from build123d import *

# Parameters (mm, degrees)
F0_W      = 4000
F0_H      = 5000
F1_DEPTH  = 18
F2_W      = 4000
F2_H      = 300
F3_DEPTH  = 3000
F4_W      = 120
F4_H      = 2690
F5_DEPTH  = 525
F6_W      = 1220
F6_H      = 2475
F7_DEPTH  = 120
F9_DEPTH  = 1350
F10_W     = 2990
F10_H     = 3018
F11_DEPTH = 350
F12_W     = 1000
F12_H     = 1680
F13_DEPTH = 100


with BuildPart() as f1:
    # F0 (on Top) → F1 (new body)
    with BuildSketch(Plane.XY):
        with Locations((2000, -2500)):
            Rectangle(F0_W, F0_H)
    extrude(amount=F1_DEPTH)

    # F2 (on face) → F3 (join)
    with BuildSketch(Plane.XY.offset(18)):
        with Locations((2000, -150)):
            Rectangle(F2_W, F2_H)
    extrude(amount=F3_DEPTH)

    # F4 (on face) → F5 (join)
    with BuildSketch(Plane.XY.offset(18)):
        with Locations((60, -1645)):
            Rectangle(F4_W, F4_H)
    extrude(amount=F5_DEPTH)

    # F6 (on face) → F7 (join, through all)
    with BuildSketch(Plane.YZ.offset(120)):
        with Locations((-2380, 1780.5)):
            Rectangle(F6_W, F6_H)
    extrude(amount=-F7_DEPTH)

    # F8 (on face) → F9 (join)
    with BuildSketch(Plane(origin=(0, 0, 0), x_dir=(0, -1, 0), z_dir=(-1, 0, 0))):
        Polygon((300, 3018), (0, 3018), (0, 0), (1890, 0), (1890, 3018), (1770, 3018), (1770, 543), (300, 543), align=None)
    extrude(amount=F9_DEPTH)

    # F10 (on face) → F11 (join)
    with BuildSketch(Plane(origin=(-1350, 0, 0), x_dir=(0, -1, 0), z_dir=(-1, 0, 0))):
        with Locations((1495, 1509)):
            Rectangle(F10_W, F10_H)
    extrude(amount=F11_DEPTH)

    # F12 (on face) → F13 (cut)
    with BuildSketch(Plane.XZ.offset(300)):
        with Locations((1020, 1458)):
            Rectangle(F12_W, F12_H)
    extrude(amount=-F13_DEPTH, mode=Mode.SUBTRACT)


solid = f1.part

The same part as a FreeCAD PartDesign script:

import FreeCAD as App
import Part
import Sketcher
from FreeCAD import Vector


def add_polygon(sketch, points):
    """Adds a closed chain of lines whose ends are joined by coincident constraints."""
    first, n = sketch.GeometryCount, len(points)
    for a, b in zip(points, points[1:] + points[:1]):
        sketch.addGeometry(Part.LineSegment(App.Vector(*a, 0), App.Vector(*b, 0)), False)
    for i in range(n):
        sketch.addConstraint(Sketcher.Constraint("Coincident", first + i, 2, first + (i + 1) % n, 1))

doc = App.newDocument("Part")
params = doc.addObject("Spreadsheet::Sheet", "Params")
for row, (alias, value) in enumerate([
    ("sketch1_width", "4000 mm"),
    ("sketch1_height", "5000 mm"),
    ("pad1_length", "18 mm"),
    ("sketch2_width", "4000 mm"),
    ("sketch2_height", "300 mm"),
    ("pad2_length", "3000 mm"),
    ("sketch3_width", "120 mm"),
    ("sketch3_height", "2690 mm"),
    ("pad3_length", "525 mm"),
    ("sketch4_width", "1220 mm"),
    ("sketch4_height", "2475 mm"),
    ("pad4_length", "120 mm"),
    ("sketch5_width", "300 mm"),
    ("sketch5_width2", "1890 mm"),
    ("sketch5_width3", "120 mm"),
    ("sketch5_height", "3018 mm"),
    ("sketch5_height2", "2475 mm"),
    ("pad5_length", "1350 mm"),
    ("sketch6_width", "2990 mm"),
    ("sketch6_height", "3018 mm"),
    ("pad6_length", "350 mm"),
    ("sketch7_width", "1000 mm"),
    ("sketch7_height", "1680 mm"),
    ("pocket1_length", "100 mm"),
], start=1):
    params.set(f"A{row}", alias)
    params.set(f"B{row}", "=" + value)
    params.setAlias(f"B{row}", alias)

body = doc.addObject("PartDesign::Body", "Body")

# Sketch on XY plane
sketch1 = body.newObject("Sketcher::SketchObject", "Sketch")
sketch1.AttachmentSupport = (doc.getObject("XY_Plane"), [""])
sketch1.MapMode = "FlatFace"
add_polygon(sketch1, [(0, 0), (0, -5000), (4000, -5000), (4000, 0)])  # lines 0-3
sketch1.addConstraint(Sketcher.Constraint("Vertical", 0))
sketch1.addConstraint(Sketcher.Constraint("Horizontal", 1))
sketch1.addConstraint(Sketcher.Constraint("Vertical", 2))
sketch1.addConstraint(Sketcher.Constraint("Horizontal", 3))
sketch1.addConstraint(Sketcher.Constraint("Coincident", 3, 2, -1, 1))
sketch1.addConstraint(Sketcher.Constraint("DistanceX", 1, 1, 1, 2, 4000.0))
sketch1.addConstraint(Sketcher.Constraint("DistanceY", 0, 2, 0, 1, 5000.0))
sketch1.setExpression("Constraints[9]", "Params.sketch1_width")
sketch1.setExpression("Constraints[10]", "Params.sketch1_height")
pad1 = body.newObject("PartDesign::Pad", "Pad")
pad1.Profile = sketch1
pad1.setExpression("Length", "Params.pad1_length")

# Sketch on XY plane
sketch2 = body.newObject("Sketcher::SketchObject", "Sketch001")
sketch2.AttachmentSupport = (doc.getObject("XY_Plane"), [""])
sketch2.MapMode = "FlatFace"
sketch2.AttachmentOffset = App.Placement(Vector(0, 0, 18), App.Rotation())
add_polygon(sketch2, [(0, 0), (0, -300), (4000, -300), (4000, 0)])  # lines 0-3
sketch2.addConstraint(Sketcher.Constraint("Vertical", 0))
sketch2.addConstraint(Sketcher.Constraint("Horizontal", 1))
sketch2.addConstraint(Sketcher.Constraint("Vertical", 2))
sketch2.addConstraint(Sketcher.Constraint("Horizontal", 3))
sketch2.addConstraint(Sketcher.Constraint("Coincident", 3, 2, -1, 1))
sketch2.addConstraint(Sketcher.Constraint("DistanceX", 1, 1, 1, 2, 4000.0))
sketch2.addConstraint(Sketcher.Constraint("DistanceY", 0, 2, 0, 1, 300.0))
sketch2.setExpression("Constraints[9]", "Params.sketch2_width")
sketch2.setExpression("Constraints[10]", "Params.sketch2_height")
pad2 = body.newObject("PartDesign::Pad", "Pad001")
pad2.Profile = sketch2
pad2.setExpression("Length", "Params.pad2_length")

# Sketch on XY plane
sketch3 = body.newObject("Sketcher::SketchObject", "Sketch002")
sketch3.AttachmentSupport = (doc.getObject("XY_Plane"), [""])
sketch3.MapMode = "FlatFace"
sketch3.AttachmentOffset = App.Placement(Vector(0, 0, 18), App.Rotation())
add_polygon(sketch3, [(0, -300), (0, -2990), (120, -2990), (120, -300)])  # lines 0-3
sketch3.addConstraint(Sketcher.Constraint("Vertical", 0))
sketch3.addConstraint(Sketcher.Constraint("Horizontal", 1))
sketch3.addConstraint(Sketcher.Constraint("Vertical", 2))
sketch3.addConstraint(Sketcher.Constraint("Horizontal", 3))
sketch3.addConstraint(Sketcher.Constraint("PointOnObject", 0, 2, -2))
sketch3.addConstraint(Sketcher.Constraint("DistanceX", 1, 1, 1, 2, 120.0))
sketch3.addConstraint(Sketcher.Constraint("DistanceY", 0, 2, 0, 1, 2690.0))
sketch3.addConstraint(Sketcher.Constraint("DistanceY", 0, 2, -1, 1, 2990.0))
sketch3.setExpression("Constraints[9]", "Params.sketch3_width")
sketch3.setExpression("Constraints[10]", "Params.sketch3_height")
pad3 = body.newObject("PartDesign::Pad", "Pad002")
pad3.Profile = sketch3
pad3.setExpression("Length", "Params.pad3_length")

# Sketch on YZ plane
sketch4 = body.newObject("Sketcher::SketchObject", "Sketch003")
sketch4.AttachmentSupport = (doc.getObject("YZ_Plane"), [""])
sketch4.MapMode = "FlatFace"
sketch4.AttachmentOffset = App.Placement(Vector(0, 0, 120), App.Rotation())
add_polygon(sketch4, [(-2990, 3018), (-2990, 543), (-1770, 543), (-1770, 3018)])  # lines 0-3
sketch4.addConstraint(Sketcher.Constraint("Vertical", 0))
sketch4.addConstraint(Sketcher.Constraint("Horizontal", 1))
sketch4.addConstraint(Sketcher.Constraint("Vertical", 2))
sketch4.addConstraint(Sketcher.Constraint("Horizontal", 3))
sketch4.addConstraint(Sketcher.Constraint("DistanceX", 1, 1, 1, 2, 1220.0))
sketch4.addConstraint(Sketcher.Constraint("DistanceY", 0, 2, 0, 1, 2475.0))
sketch4.addConstraint(Sketcher.Constraint("DistanceX", 0, 2, -1, 1, 2990.0))
sketch4.addConstraint(Sketcher.Constraint("DistanceY", -1, 1, 0, 2, 543.0))
sketch4.setExpression("Constraints[8]", "Params.sketch4_width")
sketch4.setExpression("Constraints[9]", "Params.sketch4_height")
pad4 = body.newObject("PartDesign::Pad", "Pad003")
pad4.Profile = sketch4
pad4.setExpression("Length", "Params.pad4_length")
pad4.Reversed = True

# Sketch on YZ plane
sketch5 = body.newObject("Sketcher::SketchObject", "Sketch004")
sketch5.AttachmentSupport = (doc.getObject("YZ_Plane"), [""])
sketch5.MapMode = "FlatFace"
add_polygon(sketch5, [(-300, 3018), (0, 3018), (0, 0), (-1890, 0), (-1890, 3018), (-1770, 3018), (-1770, 543), (-300, 543)])  # lines 0-7
sketch5.addConstraint(Sketcher.Constraint("Horizontal", 0))
sketch5.addConstraint(Sketcher.Constraint("Vertical", 1))
sketch5.addConstraint(Sketcher.Constraint("Horizontal", 2))
sketch5.addConstraint(Sketcher.Constraint("Vertical", 3))
sketch5.addConstraint(Sketcher.Constraint("Horizontal", 4))
sketch5.addConstraint(Sketcher.Constraint("Vertical", 5))
sketch5.addConstraint(Sketcher.Constraint("Horizontal", 6))
sketch5.addConstraint(Sketcher.Constraint("Vertical", 7))
sketch5.addConstraint(Sketcher.Constraint("Coincident", 1, 2, -1, 1))
sketch5.addConstraint(Sketcher.Constraint("Horizontal", 0, 2, 3, 2))
sketch5.addConstraint(Sketcher.Constraint("DistanceX", 0, 1, 0, 2, 300.0))
sketch5.addConstraint(Sketcher.Constraint("DistanceX", 2, 2, 2, 1, 1890.0))
sketch5.addConstraint(Sketcher.Constraint("DistanceX", 4, 1, 4, 2, 120.0))
sketch5.addConstraint(Sketcher.Constraint("DistanceY", 1, 2, 1, 1, 3018.0))
sketch5.addConstraint(Sketcher.Constraint("DistanceY", 5, 2, 5, 1, 2475.0))
sketch5.setExpression("Constraints[18]", "Params.sketch5_width")
sketch5.setExpression("Constraints[19]", "Params.sketch5_width2")
sketch5.setExpression("Constraints[20]", "Params.sketch5_width3")
sketch5.setExpression("Constraints[21]", "Params.sketch5_height")
sketch5.setExpression("Constraints[22]", "Params.sketch5_height2")
pad5 = body.newObject("PartDesign::Pad", "Pad004")
pad5.Profile = sketch5
pad5.setExpression("Length", "Params.pad5_length")
pad5.Reversed = True

# Sketch on YZ plane
sketch6 = body.newObject("Sketcher::SketchObject", "Sketch005")
sketch6.AttachmentSupport = (doc.getObject("YZ_Plane"), [""])
sketch6.MapMode = "FlatFace"
sketch6.AttachmentOffset = App.Placement(Vector(0, 0, -1350), App.Rotation())
add_polygon(sketch6, [(0, 3018), (0, 0), (-2990, 0), (-2990, 3018)])  # lines 0-3
sketch6.addConstraint(Sketcher.Constraint("Vertical", 0))
sketch6.addConstraint(Sketcher.Constraint("Horizontal", 1))
sketch6.addConstraint(Sketcher.Constraint("Vertical", 2))
sketch6.addConstraint(Sketcher.Constraint("Horizontal", 3))
sketch6.addConstraint(Sketcher.Constraint("Coincident", 0, 2, -1, 1))
sketch6.addConstraint(Sketcher.Constraint("DistanceX", 1, 2, 1, 1, 2990.0))
sketch6.addConstraint(Sketcher.Constraint("DistanceY", 0, 2, 0, 1, 3018.0))
sketch6.setExpression("Constraints[9]", "Params.sketch6_width")
sketch6.setExpression("Constraints[10]", "Params.sketch6_height")
pad6 = body.newObject("PartDesign::Pad", "Pad005")
pad6.Profile = sketch6
pad6.setExpression("Length", "Params.pad6_length")
pad6.Reversed = True

# Sketch on XZ plane
sketch7 = body.newObject("Sketcher::SketchObject", "Sketch006")
sketch7.AttachmentSupport = (doc.getObject("XZ_Plane"), [""])
sketch7.MapMode = "FlatFace"
sketch7.AttachmentOffset = App.Placement(Vector(0, 0, 300), App.Rotation())
add_polygon(sketch7, [(520, 2298), (520, 618), (1520, 618), (1520, 2298)])  # lines 0-3
sketch7.addConstraint(Sketcher.Constraint("Vertical", 0))
sketch7.addConstraint(Sketcher.Constraint("Horizontal", 1))
sketch7.addConstraint(Sketcher.Constraint("Vertical", 2))
sketch7.addConstraint(Sketcher.Constraint("Horizontal", 3))
sketch7.addConstraint(Sketcher.Constraint("DistanceX", 1, 1, 1, 2, 1000.0))
sketch7.addConstraint(Sketcher.Constraint("DistanceY", 0, 2, 0, 1, 1680.0))
sketch7.addConstraint(Sketcher.Constraint("DistanceX", -1, 1, 0, 2, 520.0))
sketch7.addConstraint(Sketcher.Constraint("DistanceY", -1, 1, 0, 2, 618.0))
sketch7.setExpression("Constraints[8]", "Params.sketch7_width")
sketch7.setExpression("Constraints[9]", "Params.sketch7_height")
pocket1 = body.newObject("PartDesign::Pocket", "Pocket")
pocket1.Profile = sketch7
pocket1.setExpression("Length", "Params.pocket1_length")

doc.recompute()
